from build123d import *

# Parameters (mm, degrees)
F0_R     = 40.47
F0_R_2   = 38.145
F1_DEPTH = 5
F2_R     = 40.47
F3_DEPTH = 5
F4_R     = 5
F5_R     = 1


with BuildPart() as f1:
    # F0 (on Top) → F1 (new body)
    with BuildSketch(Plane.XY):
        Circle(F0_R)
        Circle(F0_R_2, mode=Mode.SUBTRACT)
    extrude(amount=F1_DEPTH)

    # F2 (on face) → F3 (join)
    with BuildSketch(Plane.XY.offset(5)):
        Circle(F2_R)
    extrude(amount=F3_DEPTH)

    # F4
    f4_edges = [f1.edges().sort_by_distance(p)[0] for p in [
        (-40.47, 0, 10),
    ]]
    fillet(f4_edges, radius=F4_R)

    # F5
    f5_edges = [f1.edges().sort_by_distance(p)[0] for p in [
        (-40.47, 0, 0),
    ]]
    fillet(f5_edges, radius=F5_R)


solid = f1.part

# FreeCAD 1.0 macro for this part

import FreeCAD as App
import Part
import Sketcher

V = App.Vector


def edges_at(feature, points):
    """Names of the edges that pass closest to the given points."""
    edges = feature.Shape.Edges
    near = lambda p: min(range(len(edges)), key=lambda i: edges[i].distToShape(Part.Vertex(*p))[0])
    return sorted({f"Edge{near(p) + 1}" for p in points})

doc = App.newDocument("Part")
body = doc.addObject("PartDesign::Body", "Body")

# Sketch on XY plane
sketch1 = body.newObject("Sketcher::SketchObject", "Sketch")
sketch1.AttachmentSupport = (doc.getObject("XY_Plane"), [""])
sketch1.MapMode = "FlatFace"
sketch1.addGeometry([
    Part.Circle(V(0, 0, 0), V(0, 0, 1), 40.47),
    Part.Circle(V(0, 0, 0), V(0, 0, 1), 38.145),
], False)
sketch1.addConstraint([
    Sketcher.Constraint("Coincident", 0, 3, -1, 1),
    Sketcher.Constraint("Coincident", 1, 3, -1, 1),
    Sketcher.Constraint("Diameter", 0, 80.94),
    Sketcher.Constraint("Diameter", 1, 76.29),
])
pad1 = body.newObject("PartDesign::Pad", "Pad")
pad1.Profile = sketch1
pad1.Length = 5

# Sketch on XY plane
sketch2 = body.newObject("Sketcher::SketchObject", "Sketch001")
sketch2.AttachmentSupport = (doc.getObject("XY_Plane"), [""])
sketch2.MapMode = "FlatFace"
sketch2.AttachmentOffset = App.Placement(V(0, 0, 5), App.Rotation())
sketch2.addGeometry(Part.Circle(V(0, 0, 0), V(0, 0, 1), 40.47), False)
sketch2.addConstraint([
    Sketcher.Constraint("Coincident", 0, 3, -1, 1),
    Sketcher.Constraint("Diameter", 0, 80.94),
])
pad2 = body.newObject("PartDesign::Pad", "Pad001")
pad2.Profile = sketch2
pad2.Length = 5
doc.recompute()

fillet = body.newObject("PartDesign::Fillet", "Fillet")
fillet.Base = (pad2, edges_at(pad2, [(-40.47, 0, 10)]))
fillet.Radius = 5
doc.recompute()

fillet2 = body.newObject("PartDesign::Fillet", "Fillet001")
fillet2.Base = (fillet, edges_at(fillet, [(-40.47, 0, 0)]))
fillet2.Radius = 1

doc.recompute()
